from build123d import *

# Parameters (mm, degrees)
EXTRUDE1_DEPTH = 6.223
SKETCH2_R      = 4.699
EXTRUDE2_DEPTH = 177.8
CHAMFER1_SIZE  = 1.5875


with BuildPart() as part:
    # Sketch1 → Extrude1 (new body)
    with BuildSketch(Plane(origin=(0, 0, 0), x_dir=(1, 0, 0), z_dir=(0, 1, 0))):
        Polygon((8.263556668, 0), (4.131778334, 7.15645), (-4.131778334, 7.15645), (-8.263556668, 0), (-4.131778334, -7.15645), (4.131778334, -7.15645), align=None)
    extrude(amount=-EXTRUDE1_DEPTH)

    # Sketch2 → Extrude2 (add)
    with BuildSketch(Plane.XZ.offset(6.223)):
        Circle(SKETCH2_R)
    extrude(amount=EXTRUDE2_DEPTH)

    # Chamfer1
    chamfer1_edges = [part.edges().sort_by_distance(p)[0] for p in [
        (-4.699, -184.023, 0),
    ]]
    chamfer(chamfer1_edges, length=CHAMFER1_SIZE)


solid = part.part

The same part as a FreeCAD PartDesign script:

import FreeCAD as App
import Part
import Sketcher
from FreeCAD import Vector
Q = App.Units.Quantity


def edges_at(feature, points):
    """Names of the edges that pass closest to the given points."""
    edges = feature.Shape.Edges
    near = lambda p: min(range(len(edges)), key=lambda i: edges[i].distToShape(Part.Vertex(*p))[0])
    return sorted({f"Edge{near(p) + 1}" for p in points})


def add_polygon(sketch, points):
    """Adds a closed chain of lines whose ends are joined by coincident constraints."""
    first, n = sketch.GeometryCount, len(points)
    for a, b in zip(points, points[1:] + points[:1]):
        sketch.addGeometry(Part.LineSegment(App.Vector(*a, 0), App.Vector(*b, 0)), False)
    for i in range(n):
        sketch.addConstraint(Sketcher.Constraint("Coincident", first + i, 2, first + (i + 1) % n, 1))

doc = App.newDocument("Part")
body = doc.addObject("PartDesign::Body", "Body")

# Sketch on XZ plane
sketch1 = body.newObject("Sketcher::SketchObject", "Sketch")
sketch1.AttachmentSupport = (doc.getObject("XZ_Plane"), [""])
sketch1.MapMode = "FlatFace"
add_polygon(sketch1, [(8, 0), (4, -7), (-4, -7), (-8, 0), (-4, 7), (4, 7)])  # lines 0-5
sketch1.addConstraint(Sketcher.Constraint("Horizontal", 1))
sketch1.addConstraint(Sketcher.Constraint("Horizontal", 4))
sketch1.addConstraint(Sketcher.Constraint("Symmetric", 0, 2, 3, 2, -1, 1))
sketch1.addConstraint(Sketcher.Constraint("Symmetric", 2, 2, 5, 2, -1, 1))
sketch1.addConstraint(Sketcher.Constraint("PointOnObject", 2, 2, -1))
sketch1.addConstraint(Sketcher.Constraint("Parallel", 2, 5))
sketch1.addConstraint(Sketcher.Constraint("Vertical", 1, 2, 3, 2))
sketch1.addConstraint(Sketcher.Constraint("Angle", 0, Q("-120 deg")))
sketch1.addConstraint(Sketcher.Constraint("DistanceY", 1, 2, 3, 2, Q("0.5635 in")))
sketch1.addConstraint(Sketcher.Constraint("DistanceX", 1, 2, 1, 1, Q("8.263557 mm")))
pad1 = body.newObject("PartDesign::Pad", "Pad")
pad1.Profile = sketch1
pad1.Length = Q("0.245 in")

# Sketch on XZ plane
sketch2 = body.newObject("Sketcher::SketchObject", "Sketch001")
sketch2.AttachmentSupport = (doc.getObject("XZ_Plane"), [""])
sketch2.MapMode = "FlatFace"
sketch2.AttachmentOffset = App.Placement(Vector(0, 0, 0.245 * 25.4), App.Rotation())
sketch2.addGeometry(Part.Circle(Vector(0, 0, 0), Vector(0, 0, 1), 4.7), False)
sketch2.addConstraint(Sketcher.Constraint("Coincident", 0, 3, -1, 1))
sketch2.addConstraint(Sketcher.Constraint("Diameter", 0, Q("0.37 in")))
pad2 = body.newObject("PartDesign::Pad", "Pad001")
pad2.Profile = sketch2
pad2.Length = Q("7 in")
doc.recompute()

chamfer = body.newObject("PartDesign::Chamfer", "Chamfer")
chamfer.Base = (pad2, edges_at(pad2, [(-4.699, -184.023, 0)]))
chamfer.Size = Q("0.0625 in")

doc.recompute()
